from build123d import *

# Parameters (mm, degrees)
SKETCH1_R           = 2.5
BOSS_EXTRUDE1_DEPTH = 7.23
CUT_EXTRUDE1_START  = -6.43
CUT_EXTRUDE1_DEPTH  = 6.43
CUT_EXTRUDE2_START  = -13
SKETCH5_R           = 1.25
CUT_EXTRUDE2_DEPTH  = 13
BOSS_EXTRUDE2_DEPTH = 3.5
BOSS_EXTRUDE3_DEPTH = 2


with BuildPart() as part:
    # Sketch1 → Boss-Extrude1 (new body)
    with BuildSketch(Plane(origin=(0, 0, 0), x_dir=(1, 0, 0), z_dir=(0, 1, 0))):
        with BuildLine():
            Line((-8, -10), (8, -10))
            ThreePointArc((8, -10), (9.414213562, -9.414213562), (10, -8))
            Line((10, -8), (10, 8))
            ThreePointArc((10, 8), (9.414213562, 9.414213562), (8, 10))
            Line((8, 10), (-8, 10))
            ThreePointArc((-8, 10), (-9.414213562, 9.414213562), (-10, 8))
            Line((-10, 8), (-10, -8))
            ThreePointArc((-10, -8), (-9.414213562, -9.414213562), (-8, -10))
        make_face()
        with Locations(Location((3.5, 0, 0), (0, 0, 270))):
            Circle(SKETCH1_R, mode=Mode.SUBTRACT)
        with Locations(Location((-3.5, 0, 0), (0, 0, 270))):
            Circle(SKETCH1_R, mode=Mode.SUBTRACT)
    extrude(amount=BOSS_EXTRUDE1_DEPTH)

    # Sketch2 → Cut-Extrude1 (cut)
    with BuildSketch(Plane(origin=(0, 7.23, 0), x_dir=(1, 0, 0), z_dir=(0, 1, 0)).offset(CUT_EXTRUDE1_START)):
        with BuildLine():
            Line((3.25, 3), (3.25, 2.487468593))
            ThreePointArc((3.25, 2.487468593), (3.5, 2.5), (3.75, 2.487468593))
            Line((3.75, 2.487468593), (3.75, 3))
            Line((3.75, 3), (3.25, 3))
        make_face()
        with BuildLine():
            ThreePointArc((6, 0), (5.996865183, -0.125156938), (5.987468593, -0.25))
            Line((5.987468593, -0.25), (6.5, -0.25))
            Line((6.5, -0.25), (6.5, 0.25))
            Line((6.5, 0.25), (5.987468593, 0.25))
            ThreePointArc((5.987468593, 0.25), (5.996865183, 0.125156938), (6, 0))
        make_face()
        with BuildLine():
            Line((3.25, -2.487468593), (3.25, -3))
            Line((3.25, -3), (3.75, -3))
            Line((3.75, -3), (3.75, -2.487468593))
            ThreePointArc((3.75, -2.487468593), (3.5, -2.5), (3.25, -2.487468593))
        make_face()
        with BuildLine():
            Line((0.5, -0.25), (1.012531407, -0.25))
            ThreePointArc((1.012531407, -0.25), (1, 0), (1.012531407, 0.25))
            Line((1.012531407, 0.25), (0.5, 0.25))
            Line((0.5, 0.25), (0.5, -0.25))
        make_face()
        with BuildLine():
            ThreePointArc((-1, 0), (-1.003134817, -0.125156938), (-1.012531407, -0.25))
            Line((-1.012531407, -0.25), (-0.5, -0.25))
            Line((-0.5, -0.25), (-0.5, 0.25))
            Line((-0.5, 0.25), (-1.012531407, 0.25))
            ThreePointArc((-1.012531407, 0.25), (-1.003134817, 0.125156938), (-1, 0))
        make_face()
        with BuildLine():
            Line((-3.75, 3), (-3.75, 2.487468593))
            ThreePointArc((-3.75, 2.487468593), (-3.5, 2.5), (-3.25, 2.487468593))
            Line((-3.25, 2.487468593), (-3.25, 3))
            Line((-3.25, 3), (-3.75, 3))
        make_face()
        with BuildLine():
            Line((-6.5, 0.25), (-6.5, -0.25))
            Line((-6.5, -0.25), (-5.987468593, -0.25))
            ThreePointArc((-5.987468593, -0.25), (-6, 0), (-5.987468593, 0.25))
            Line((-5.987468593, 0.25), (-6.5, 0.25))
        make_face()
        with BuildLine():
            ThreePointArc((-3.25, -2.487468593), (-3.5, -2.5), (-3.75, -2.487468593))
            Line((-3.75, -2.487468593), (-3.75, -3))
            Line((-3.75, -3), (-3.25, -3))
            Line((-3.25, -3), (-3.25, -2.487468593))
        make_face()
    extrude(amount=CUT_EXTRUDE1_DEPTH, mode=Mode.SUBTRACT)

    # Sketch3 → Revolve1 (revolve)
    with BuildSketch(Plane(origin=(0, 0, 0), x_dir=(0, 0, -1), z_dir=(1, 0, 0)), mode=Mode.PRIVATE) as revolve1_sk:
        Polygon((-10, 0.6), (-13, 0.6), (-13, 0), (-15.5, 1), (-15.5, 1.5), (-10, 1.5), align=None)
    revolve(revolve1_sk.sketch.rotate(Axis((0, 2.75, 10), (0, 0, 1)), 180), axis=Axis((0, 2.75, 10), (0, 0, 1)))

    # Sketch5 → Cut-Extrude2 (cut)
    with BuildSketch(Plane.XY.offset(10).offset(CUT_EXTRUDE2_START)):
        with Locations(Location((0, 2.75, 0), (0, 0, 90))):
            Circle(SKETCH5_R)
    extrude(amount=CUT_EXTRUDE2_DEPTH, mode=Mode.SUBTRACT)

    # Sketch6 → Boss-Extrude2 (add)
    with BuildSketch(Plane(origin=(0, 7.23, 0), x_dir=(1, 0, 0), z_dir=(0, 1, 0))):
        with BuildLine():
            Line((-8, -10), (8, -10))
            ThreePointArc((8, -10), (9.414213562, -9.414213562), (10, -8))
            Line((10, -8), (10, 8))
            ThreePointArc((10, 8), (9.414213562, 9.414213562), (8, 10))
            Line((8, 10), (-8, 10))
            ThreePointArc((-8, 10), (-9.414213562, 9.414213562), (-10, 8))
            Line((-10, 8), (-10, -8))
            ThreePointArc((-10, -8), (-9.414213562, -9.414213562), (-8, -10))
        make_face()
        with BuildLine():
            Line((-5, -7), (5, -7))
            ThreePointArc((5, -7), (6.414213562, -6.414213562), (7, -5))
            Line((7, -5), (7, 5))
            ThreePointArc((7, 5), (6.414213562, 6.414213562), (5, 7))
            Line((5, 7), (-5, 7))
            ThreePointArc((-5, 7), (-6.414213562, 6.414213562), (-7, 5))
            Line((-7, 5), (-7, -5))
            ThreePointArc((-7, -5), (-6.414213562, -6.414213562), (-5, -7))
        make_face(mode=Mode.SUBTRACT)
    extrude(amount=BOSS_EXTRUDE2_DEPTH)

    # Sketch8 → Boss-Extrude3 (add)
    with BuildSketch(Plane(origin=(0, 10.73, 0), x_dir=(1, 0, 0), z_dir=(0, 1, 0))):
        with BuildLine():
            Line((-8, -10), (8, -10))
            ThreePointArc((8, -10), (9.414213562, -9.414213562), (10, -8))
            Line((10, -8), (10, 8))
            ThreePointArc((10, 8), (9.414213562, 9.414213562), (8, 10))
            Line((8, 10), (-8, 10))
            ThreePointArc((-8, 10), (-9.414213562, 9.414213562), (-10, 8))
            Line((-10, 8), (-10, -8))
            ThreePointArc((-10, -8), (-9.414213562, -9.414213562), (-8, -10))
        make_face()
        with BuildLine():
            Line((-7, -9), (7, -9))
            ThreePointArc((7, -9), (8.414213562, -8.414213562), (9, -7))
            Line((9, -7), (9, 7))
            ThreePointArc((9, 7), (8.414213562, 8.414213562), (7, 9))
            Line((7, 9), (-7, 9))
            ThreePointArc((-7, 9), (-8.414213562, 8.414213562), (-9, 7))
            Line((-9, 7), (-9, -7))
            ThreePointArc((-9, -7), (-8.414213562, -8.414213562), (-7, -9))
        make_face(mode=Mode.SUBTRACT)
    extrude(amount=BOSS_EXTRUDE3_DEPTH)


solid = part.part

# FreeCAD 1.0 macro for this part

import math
import FreeCAD as App
import Part
import Sketcher

doc = App.newDocument("Part")
params = doc.addObject("Spreadsheet::Sheet", "Params")
for row, (alias, value) in enumerate([
    ("sketch1_diameter", "5 mm"),
    ("sketch1_radius", "2 mm"),
    ("sketch1_width", "16 mm"),
    ("pad1_length", "7.23 mm"),
    ("sketch2_radius", "2.5 mm"),
    ("sketch2_width", "0.5 mm"),
    ("pocket1_length", "6.43 mm"),
    ("sketch3_height", "3 mm"),
    ("sketch3_width", "0.9 mm"),
    ("sketch3_width2", "0.5 mm"),
    ("sketch3_width3", "0.6 mm"),
    ("sketch3_height2", "5.5 mm"),
    ("revolution_angle", "360 deg"),
    ("sketch4_diameter", "2.5 mm"),
    ("pocket2_length", "13 mm"),
    ("sketch5_radius", "2 mm"),
    ("sketch5_width", "16 mm"),
    ("sketch5_width2", "10 mm"),
    ("pad2_length", "3.5 mm"),
    ("sketch6_radius", "2 mm"),
    ("sketch6_width", "16 mm"),
    ("sketch6_width2", "14 mm"),
    ("pad3_length", "2 mm"),
], start=1):
    params.set(f"A{row}", alias)
    params.set(f"B{row}", "=" + value)
    params.setAlias(f"B{row}", alias)

body = doc.addObject("PartDesign::Body", "Body")

# Sketch on XZ plane
sketch1 = doc.addObject("Sketcher::SketchObject", "Sketch")
body.addObject(sketch1)
sketch1.AttachmentSupport = (doc.XZ_Plane, [""])
sketch1.MapMode = "FlatFace"
sketch1.addGeometry([
    Part.LineSegment(App.Vector(-8, 10, 0), App.Vector(8, 10, 0)),  # 0
    Part.ArcOfCircle(Part.Circle(App.Vector(8, 8, 0), App.Vector(0, 0, 1), 2), math.radians(0), math.radians(90)),  # 1
    Part.LineSegment(App.Vector(10, 8, 0), App.Vector(10, -8, 0)),  # 2
    Part.ArcOfCircle(Part.Circle(App.Vector(8, -8, 0), App.Vector(0, 0, 1), 2), math.radians(-90), math.radians(0)),  # 3
    Part.LineSegment(App.Vector(8, -10, 0), App.Vector(-8, -10, 0)),  # 4
    Part.ArcOfCircle(Part.Circle(App.Vector(-8, -8, 0), App.Vector(0, 0, 1), 2), math.radians(-180), math.radians(-90)),  # 5
    Part.LineSegment(App.Vector(-10, -8, 0), App.Vector(-10, 8, 0)),  # 6
    Part.ArcOfCircle(Part.Circle(App.Vector(-8, 8, 0), App.Vector(0, 0, 1), 2), math.radians(90), math.radians(180)),  # 7
    Part.Circle(App.Vector(-3.5, 0, 0), App.Vector(0, 0, 1), 2.5),  # 8
    Part.Circle(App.Vector(3.5, 0, 0), App.Vector(0, 0, 1), 2.5),  # 9
], False)
sketch1.addConstraint([
    Sketcher.Constraint("Tangent", 0, 2, 1, 2),
    Sketcher.Constraint("Tangent", 1, 1, 2, 1),
    Sketcher.Constraint("Tangent", 2, 2, 3, 2),
    Sketcher.Constraint("Tangent", 3, 1, 4, 1),
    Sketcher.Constraint("Tangent", 4, 2, 5, 2),
    Sketcher.Constraint("Tangent", 5, 1, 6, 1),
    Sketcher.Constraint("Tangent", 6, 2, 7, 2),
    Sketcher.Constraint("Tangent", 7, 1, 0, 1),
    Sketcher.Constraint("Horizontal", 0),
    Sketcher.Constraint("Vertical", 2),
    Sketcher.Constraint("Horizontal", 4),
    Sketcher.Constraint("Vertical", 6),
    Sketcher.Constraint("Equal", 1, 3),
    Sketcher.Constraint("Equal", 3, 5),
    Sketcher.Constraint("Equal", 5, 7),
    Sketcher.Constraint("Equal", 8, 9),
    Sketcher.Constraint("Symmetric", 1, 3, 5, 3, -1, 1),
    Sketcher.Constraint("Symmetric", 8, 3, 9, 3, -1, 1),
    Sketcher.Constraint("PointOnObject", 8, 3, -1),
    Sketcher.Constraint("Equal", 4, 2),
    Sketcher.Constraint("Diameter", 8, 5.0),
    Sketcher.Constraint("Radius", 1, 2.0),
    Sketcher.Constraint("DistanceX", 0, 1, 0, 2, 16.0),
    Sketcher.Constraint("DistanceX", 8, 3, 9, 3, 7.0),
])
sketch1.setExpression("Constraints[20]", "Params.sketch1_diameter")
sketch1.setExpression("Constraints[21]", "Params.sketch1_radius")
sketch1.setExpression("Constraints[22]", "Params.sketch1_width")
pad1 = doc.addObject("PartDesign::Pad", "Pad")
body.addObject(pad1)
pad1.Profile = sketch1
pad1.setExpression("Length", "Params.pad1_length")
pad1.Reversed = True

# Sketch on XZ plane
sketch2 = doc.addObject("Sketcher::SketchObject", "Sketch001")
body.addObject(sketch2)
sketch2.AttachmentSupport = (doc.XZ_Plane, [""])
sketch2.MapMode = "FlatFace"
sketch2.AttachmentOffset = App.Placement(App.Vector(0, 0, -0.8), App.Rotation())
sketch2.addGeometry([
    Part.LineSegment(App.Vector(3.25, -3, 0), App.Vector(3.25, -2.487469, 0)),  # 0
    Part.ArcOfCircle(Part.Circle(App.Vector(3.5, 0, 0), App.Vector(0, 0, 1), 2.5), math.radians(-95.73917), math.radians(-84.26083)),  # 1
    Part.LineSegment(App.Vector(3.75, -2.487469, 0), App.Vector(3.75, -3, 0)),  # 2
    Part.LineSegment(App.Vector(3.75, -3, 0), App.Vector(3.25, -3, 0)),  # 3
    Part.ArcOfCircle(Part.Circle(App.Vector(3.5, 0, 0), App.Vector(0, 0, 1), 2.5), math.radians(0), math.radians(5.739171)),  # 4
    Part.LineSegment(App.Vector(5.987469, 0.25, 0), App.Vector(6.5, 0.25, 0)),  # 5
    Part.LineSegment(App.Vector(6.5, 0.25, 0), App.Vector(6.5, -0.25, 0)),  # 6
    Part.LineSegment(App.Vector(6.5, -0.25, 0), App.Vector(5.987469, -0.25, 0)),  # 7
    Part.ArcOfCircle(Part.Circle(App.Vector(3.5, 0, 0), App.Vector(0, 0, 1), 2.5), math.radians(-5.739171), math.radians(0)),  # 8
    Part.LineSegment(App.Vector(3.25, 2.487469, 0), App.Vector(3.25, 3, 0)),  # 9
    Part.LineSegment(App.Vector(3.25, 3, 0), App.Vector(3.75, 3, 0)),  # 10
    Part.LineSegment(App.Vector(3.75, 3, 0), App.Vector(3.75, 2.487469, 0)),  # 11
    Part.ArcOfCircle(Part.Circle(App.Vector(3.5, 0, 0), App.Vector(0, 0, 1), 2.5), math.radians(84.26083), math.radians(95.73917)),  # 12
    Part.LineSegment(App.Vector(0.5, 0.25, 0), App.Vector(1.012531, 0.25, 0)),  # 13
    Part.ArcOfCircle(Part.Circle(App.Vector(3.5, 0, 0), App.Vector(0, 0, 1), 2.5), math.radians(174.26083), math.radians(185.73917)),  # 14
    Part.LineSegment(App.Vector(1.012531, -0.25, 0), App.Vector(0.5, -0.25, 0)),  # 15
    Part.LineSegment(App.Vector(0.5, -0.25, 0), App.Vector(0.5, 0.25, 0)),  # 16
    Part.ArcOfCircle(Part.Circle(App.Vector(-3.5, 0, 0), App.Vector(0, 0, 1), 2.5), math.radians(0), math.radians(5.739171)),  # 17
    Part.LineSegment(App.Vector(-1.012531, 0.25, 0), App.Vector(-0.5, 0.25, 0)),  # 18
    Part.LineSegment(App.Vector(-0.5, 0.25, 0), App.Vector(-0.5, -0.25, 0)),  # 19
    Part.LineSegment(App.Vector(-0.5, -0.25, 0), App.Vector(-1.012531, -0.25, 0)),  # 20
    Part.ArcOfCircle(Part.Circle(App.Vector(-3.5, 0, 0), App.Vector(0, 0, 1), 2.5), math.radians(-5.739171), math.radians(0)),  # 21
    Part.LineSegment(App.Vector(-3.75, -3, 0), App.Vector(-3.75, -2.487469, 0)),  # 22
    Part.ArcOfCircle(Part.Circle(App.Vector(-3.5, 0, 0), App.Vector(0, 0, 1), 2.5), math.radians(-95.73917), math.radians(-84.26083)),  # 23
    Part.LineSegment(App.Vector(-3.25, -2.487469, 0), App.Vector(-3.25, -3, 0)),  # 24
    Part.LineSegment(App.Vector(-3.25, -3, 0), App.Vector(-3.75, -3, 0)),  # 25
    Part.LineSegment(App.Vector(-6.5, -0.25, 0), App.Vector(-6.5, 0.25, 0)),  # 26
    Part.LineSegment(App.Vector(-6.5, 0.25, 0), App.Vector(-5.987469, 0.25, 0)),  # 27
    Part.ArcOfCircle(Part.Circle(App.Vector(-3.5, 0, 0), App.Vector(0, 0, 1), 2.5), math.radians(174.26083), math.radians(185.73917)),  # 28
    Part.LineSegment(App.Vector(-5.987469, -0.25, 0), App.Vector(-6.5, -0.25, 0)),  # 29
    Part.ArcOfCircle(Part.Circle(App.Vector(-3.5, 0, 0), App.Vector(0, 0, 1), 2.5), math.radians(84.26083), math.radians(95.73917)),  # 30
    Part.LineSegment(App.Vector(-3.75, 2.487469, 0), App.Vector(-3.75, 3, 0)),  # 31
    Part.LineSegment(App.Vector(-3.75, 3, 0), App.Vector(-3.25, 3, 0)),  # 32
    Part.LineSegment(App.Vector(-3.25, 3, 0), App.Vector(-3.25, 2.487469, 0)),  # 33
], False)
sketch2.addConstraint([
    Sketcher.Constraint("Coincident", 0, 2, 1, 1),
    Sketcher.Constraint("Coincident", 1, 2, 2, 1),
    Sketcher.Constraint("Coincident", 2, 2, 3, 1),
    Sketcher.Constraint("Coincident", 3, 2, 0, 1),
    Sketcher.Constraint("Coincident", 4, 2, 5, 1),
    Sketcher.Constraint("Coincident", 5, 2, 6, 1),
    Sketcher.Constraint("Coincident", 6, 2, 7, 1),
    Sketcher.Constraint("Coincident", 7, 2, 8, 1),
    Sketcher.Constraint("Tangent", 8, 2, 4, 1),
    Sketcher.Constraint("Coincident", 9, 2, 10, 1),
    Sketcher.Constraint("Coincident", 10, 2, 11, 1),
    Sketcher.Constraint("Coincident", 11, 2, 12, 1),
    Sketcher.Constraint("Coincident", 12, 2, 9, 1),
    Sketcher.Constraint("Coincident", 13, 2, 14, 1),
    Sketcher.Constraint("Coincident", 14, 2, 15, 1),
    Sketcher.Constraint("Coincident", 15, 2, 16, 1),
    Sketcher.Constraint("Coincident", 16, 2, 13, 1),
    Sketcher.Constraint("Coincident", 17, 2, 18, 1),
    Sketcher.Constraint("Coincident", 18, 2, 19, 1),
    Sketcher.Constraint("Coincident", 19, 2, 20, 1),
    Sketcher.Constraint("Coincident", 20, 2, 21, 1),
    Sketcher.Constraint("Tangent", 21, 2, 17, 1),
    Sketcher.Constraint("Coincident", 22, 2, 23, 1),
    Sketcher.Constraint("Coincident", 23, 2, 24, 1),
    Sketcher.Constraint("Coincident", 24, 2, 25, 1),
    Sketcher.Constraint("Coincident", 25, 2, 22, 1),
    Sketcher.Constraint("Coincident", 26, 2, 27, 1),
    Sketcher.Constraint("Coincident", 27, 2, 28, 1),
    Sketcher.Constraint("Coincident", 28, 2, 29, 1),
    Sketcher.Constraint("Coincident", 29, 2, 26, 1),
    Sketcher.Constraint("Coincident", 30, 2, 31, 1),
    Sketcher.Constraint("Coincident", 31, 2, 32, 1),
    Sketcher.Constraint("Coincident", 32, 2, 33, 1),
    Sketcher.Constraint("Coincident", 33, 2, 30, 1),
    Sketcher.Constraint("Vertical", 0),
    Sketcher.Constraint("Vertical", 2),
    Sketcher.Constraint("Horizontal", 3),
    Sketcher.Constraint("Horizontal", 5),
    Sketcher.Constraint("Vertical", 6),
    Sketcher.Constraint("Horizontal", 7),
    Sketcher.Constraint("Vertical", 9),
    Sketcher.Constraint("Horizontal", 10),
    Sketcher.Constraint("Vertical", 11),
    Sketcher.Constraint("Horizontal", 13),
    Sketcher.Constraint("Horizontal", 15),
    Sketcher.Constraint("Vertical", 16),
    Sketcher.Constraint("Horizontal", 18),
    Sketcher.Constraint("Vertical", 19),
    Sketcher.Constraint("Horizontal", 20),
    Sketcher.Constraint("Vertical", 22),
    Sketcher.Constraint("Vertical", 24),
    Sketcher.Constraint("Horizontal", 25),
    Sketcher.Constraint("Vertical", 26),
    Sketcher.Constraint("Horizontal", 27),
    Sketcher.Constraint("Horizontal", 29),
    Sketcher.Constraint("Vertical", 31),
    Sketcher.Constraint("Horizontal", 32),
    Sketcher.Constraint("Vertical", 33),
    Sketcher.Constraint("Coincident", 4, 3, 1, 3),
    Sketcher.Constraint("Coincident", 12, 3, 1, 3),
    Sketcher.Constraint("Coincident", 14, 3, 1, 3),
    Sketcher.Constraint("Coincident", 23, 3, 17, 3),
    Sketcher.Constraint("Coincident", 28, 3, 17, 3),
    Sketcher.Constraint("Coincident", 30, 3, 17, 3),
    Sketcher.Constraint("Equal", 1, 4),
    Sketcher.Constraint("Equal", 4, 8),
    Sketcher.Constraint("Equal", 8, 12),
    Sketcher.Constraint("Equal", 12, 14),
    Sketcher.Constraint("Equal", 14, 17),
    Sketcher.Constraint("Equal", 17, 21),
    Sketcher.Constraint("Equal", 21, 23),
    Sketcher.Constraint("Equal", 23, 28),
    Sketcher.Constraint("Equal", 28, 30),
    Sketcher.Constraint("Symmetric", 1, 3, 17, 3, -1, 1),
    Sketcher.Constraint("Symmetric", 15, 2, 18, 2, -1, 1),
    Sketcher.Constraint("Symmetric", 9, 2, 24, 2, -1, 1),
    Sketcher.Constraint("Symmetric", 6, 2, 26, 2, -1, 1),
    Sketcher.Constraint("Symmetric", 2, 2, 31, 2, -1, 1),
    Sketcher.Constraint("Symmetric", 13, 2, 17, 2, -2),
    Sketcher.Constraint("Symmetric", 3, 2, 24, 2, -2),
    Sketcher.Constraint("PointOnObject", 8, 2, -1),
    Sketcher.Constraint("PointOnObject", 21, 2, -1),
    Sketcher.Constraint("Horizontal", 0, 2, 1, 2),
    Sketcher.Constraint("Horizontal", 11, 2, 12, 2),
    Sketcher.Constraint("Horizontal", 5, 2, 13, 2),
    Sketcher.Constraint("Horizontal", 7, 2, 14, 2),
    Sketcher.Constraint("Horizontal", 15, 2, 19, 2),
    Sketcher.Constraint("Horizontal", 1, 2, 22, 2),
    Sketcher.Constraint("Horizontal", 20, 2, 28, 2),
    Sketcher.Constraint("Horizontal", 30, 2, 33, 2),
    Sketcher.Constraint("Equal", 7, 13),
    Sketcher.Constraint("Equal", 29, 0),
    Sketcher.Constraint("Equal", 32, 6),
    Sketcher.Constraint("Radius", 1, 2.5),
    Sketcher.Constraint("DistanceX", 3, 2, 3, 1, 0.5),
    Sketcher.Constraint("DistanceY", 2, 2, -1, 1, 3.0),
    Sketcher.Constraint("DistanceX", -1, 1, 8, 2, 6.0),
])
sketch2.setExpression("Constraints[93]", "Params.sketch2_radius")
sketch2.setExpression("Constraints[94]", "Params.sketch2_width")
pocket1 = doc.addObject("PartDesign::Pocket", "Pocket")
body.addObject(pocket1)
pocket1.Profile = sketch2
pocket1.setExpression("Length", "Params.pocket1_length")

# Sketch on YZ plane
sketch3 = doc.addObject("Sketcher::SketchObject", "Sketch002")
body.addObject(sketch3)
sketch3.AttachmentSupport = (doc.YZ_Plane, [""])
sketch3.MapMode = "FlatFace"
sketch3.addGeometry([
    Part.LineSegment(App.Vector(0.6, 13, 0), App.Vector(0.6, 10, 0)),  # 0
    Part.LineSegment(App.Vector(0.6, 10, 0), App.Vector(1.5, 10, 0)),  # 1
    Part.LineSegment(App.Vector(1.5, 10, 0), App.Vector(1.5, 15.5, 0)),  # 2
    Part.LineSegment(App.Vector(1.5, 15.5, 0), App.Vector(1, 15.5, 0)),  # 3
    Part.LineSegment(App.Vector(1, 15.5, 0), App.Vector(0, 13, 0)),  # 4
    Part.LineSegment(App.Vector(0, 13, 0), App.Vector(0.6, 13, 0)),  # 5
], False)
sketch3.addGeometry(Part.LineSegment(App.Vector(2.75, 10, 0), App.Vector(2.75, 15.5, 0)), True)  # axis
sketch3.addConstraint([
    Sketcher.Constraint("Coincident", 0, 2, 1, 1),
    Sketcher.Constraint("Coincident", 1, 2, 2, 1),
    Sketcher.Constraint("Coincident", 2, 2, 3, 1),
    Sketcher.Constraint("Coincident", 3, 2, 4, 1),
    Sketcher.Constraint("Coincident", 4, 2, 5, 1),
    Sketcher.Constraint("Coincident", 5, 2, 0, 1),
    Sketcher.Constraint("Vertical", 0),
    Sketcher.Constraint("Horizontal", 1),
    Sketcher.Constraint("Vertical", 2),
    Sketcher.Constraint("Horizontal", 3),
    Sketcher.Constraint("Horizontal", 5),
    Sketcher.Constraint("Vertical", 6),
    Sketcher.Constraint("PointOnObject", 4, 2, -2),
    Sketcher.Constraint("Horizontal", 1, 2, 6, 1),
    Sketcher.Constraint("Horizontal", 3, 2, 6, 2),
    Sketcher.Constraint("DistanceY", 0, 2, 0, 1, 3.0),
    Sketcher.Constraint("DistanceX", 1, 1, 1, 2, 0.9),
    Sketcher.Constraint("DistanceX", 3, 2, 3, 1, 0.5),
    Sketcher.Constraint("DistanceX", 5, 1, 5, 2, 0.6),
    Sketcher.Constraint("DistanceY", 2, 1, 2, 2, 5.5),
    Sketcher.Constraint("DistanceY", -1, 1, 0, 2, 10.0),
    Sketcher.Constraint("DistanceX", -1, 1, 6, 1, 2.75),
])
sketch3.setExpression("Constraints[15]", "Params.sketch3_height")
sketch3.setExpression("Constraints[16]", "Params.sketch3_width")
sketch3.setExpression("Constraints[17]", "Params.sketch3_width2")
sketch3.setExpression("Constraints[18]", "Params.sketch3_width3")
sketch3.setExpression("Constraints[19]", "Params.sketch3_height2")
revolution = doc.addObject("PartDesign::Revolution", "Revolution")
body.addObject(revolution)
revolution.Profile = sketch3
revolution.ReferenceAxis = (sketch3, ["Axis0"])
revolution.setExpression("Angle", "Params.revolution_angle")

# Sketch on XY plane
sketch4 = doc.addObject("Sketcher::SketchObject", "Sketch003")
body.addObject(sketch4)
sketch4.AttachmentSupport = (doc.XY_Plane, [""])
sketch4.MapMode = "FlatFace"
sketch4.AttachmentOffset = App.Placement(App.Vector(0, 0, -3), App.Rotation())
sketch4.addGeometry(Part.Circle(App.Vector(0, 2.75, 0), App.Vector(0, 0, 1), 1.25), False)
sketch4.addConstraint([
    Sketcher.Constraint("PointOnObject", 0, 3, -2),
    Sketcher.Constraint("Diameter", 0, 2.5),
    Sketcher.Constraint("DistanceY", -1, 1, 0, 3, 2.75),
])
sketch4.setExpression("Constraints[1]", "Params.sketch4_diameter")
pocket2 = doc.addObject("PartDesign::Pocket", "Pocket001")
body.addObject(pocket2)
pocket2.Profile = sketch4
pocket2.setExpression("Length", "Params.pocket2_length")
pocket2.Reversed = True

# Sketch on XZ plane
sketch5 = doc.addObject("Sketcher::SketchObject", "Sketch004")
body.addObject(sketch5)
sketch5.AttachmentSupport = (doc.XZ_Plane, [""])
sketch5.MapMode = "FlatFace"
sketch5.AttachmentOffset = App.Placement(App.Vector(0, 0, -7.23), App.Rotation())
sketch5.addGeometry([
    Part.LineSegment(App.Vector(-8, 10, 0), App.Vector(8, 10, 0)),  # 0
    Part.ArcOfCircle(Part.Circle(App.Vector(8, 8, 0), App.Vector(0, 0, 1), 2), math.radians(0), math.radians(90)),  # 1
    Part.LineSegment(App.Vector(10, 8, 0), App.Vector(10, -8, 0)),  # 2
    Part.ArcOfCircle(Part.Circle(App.Vector(8, -8, 0), App.Vector(0, 0, 1), 2), math.radians(-90), math.radians(0)),  # 3
    Part.LineSegment(App.Vector(8, -10, 0), App.Vector(-8, -10, 0)),  # 4
    Part.ArcOfCircle(Part.Circle(App.Vector(-8, -8, 0), App.Vector(0, 0, 1), 2), math.radians(-180), math.radians(-90)),  # 5
    Part.LineSegment(App.Vector(-10, -8, 0), App.Vector(-10, 8, 0)),  # 6
    Part.ArcOfCircle(Part.Circle(App.Vector(-8, 8, 0), App.Vector(0, 0, 1), 2), math.radians(90), math.radians(180)),  # 7
    Part.LineSegment(App.Vector(5, 7, 0), App.Vector(-5, 7, 0)),  # 8
    Part.ArcOfCircle(Part.Circle(App.Vector(-5, 5, 0), App.Vector(0, 0, 1), 2), math.radians(90), math.radians(180)),  # 9
    Part.LineSegment(App.Vector(-7, 5, 0), App.Vector(-7, -5, 0)),  # 10
    Part.ArcOfCircle(Part.Circle(App.Vector(-5, -5, 0), App.Vector(0, 0, 1), 2), math.radians(-180), math.radians(-90)),  # 11
    Part.LineSegment(App.Vector(-5, -7, 0), App.Vector(5, -7, 0)),  # 12
    Part.ArcOfCircle(Part.Circle(App.Vector(5, -5, 0), App.Vector(0, 0, 1), 2), math.radians(-90), math.radians(0)),  # 13
    Part.LineSegment(App.Vector(7, -5, 0), App.Vector(7, 5, 0)),  # 14
    Part.ArcOfCircle(Part.Circle(App.Vector(5, 5, 0), App.Vector(0, 0, 1), 2), math.radians(0), math.radians(90)),  # 15
], False)
sketch5.addConstraint([
    Sketcher.Constraint("Tangent", 0, 2, 1, 2),
    Sketcher.Constraint("Tangent", 1, 1, 2, 1),
    Sketcher.Constraint("Tangent", 2, 2, 3, 2),
    Sketcher.Constraint("Tangent", 3, 1, 4, 1),
    Sketcher.Constraint("Tangent", 4, 2, 5, 2),
    Sketcher.Constraint("Tangent", 5, 1, 6, 1),
    Sketcher.Constraint("Tangent", 6, 2, 7, 2),
    Sketcher.Constraint("Tangent", 7, 1, 0, 1),
    Sketcher.Constraint("Tangent", 8, 2, 9, 1),
    Sketcher.Constraint("Tangent", 9, 2, 10, 1),
    Sketcher.Constraint("Tangent", 10, 2, 11, 1),
    Sketcher.Constraint("Tangent", 11, 2, 12, 1),
    Sketcher.Constraint("Tangent", 12, 2, 13, 1),
    Sketcher.Constraint("Tangent", 13, 2, 14, 1),
    Sketcher.Constraint("Tangent", 14, 2, 15, 1),
    Sketcher.Constraint("Tangent", 15, 2, 8, 1),
    Sketcher.Constraint("Horizontal", 0),
    Sketcher.Constraint("Vertical", 2),
    Sketcher.Constraint("Horizontal", 4),
    Sketcher.Constraint("Vertical", 6),
    Sketcher.Constraint("Horizontal", 8),
    Sketcher.Constraint("Vertical", 10),
    Sketcher.Constraint("Horizontal", 12),
    Sketcher.Constraint("Vertical", 14),
    Sketcher.Constraint("Equal", 1, 3),
    Sketcher.Constraint("Equal", 3, 5),
    Sketcher.Constraint("Equal", 5, 7),
    Sketcher.Constraint("Equal", 7, 9),
    Sketcher.Constraint("Equal", 9, 11),
    Sketcher.Constraint("Equal", 11, 13),
    Sketcher.Constraint("Equal", 13, 15),
    Sketcher.Constraint("Symmetric", 1, 3, 5, 3, -1, 1),
    Sketcher.Constraint("Symmetric", 9, 3, 13, 3, -1, 1),
    Sketcher.Constraint("Equal", 4, 2),
    Sketcher.Constraint("Equal", 12, 10),
    Sketcher.Constraint("Radius", 1, 2.0),
    Sketcher.Constraint("DistanceX", 0, 1, 0, 2, 16.0),
    Sketcher.Constraint("DistanceX", 8, 2, 8, 1, 10.0),
])
sketch5.setExpression("Constraints[35]", "Params.sketch5_radius")
sketch5.setExpression("Constraints[36]", "Params.sketch5_width")
sketch5.setExpression("Constraints[37]", "Params.sketch5_width2")
pad2 = doc.addObject("PartDesign::Pad", "Pad001")
body.addObject(pad2)
pad2.Profile = sketch5
pad2.setExpression("Length", "Params.pad2_length")
pad2.Reversed = True

# Sketch on XZ plane
sketch6 = doc.addObject("Sketcher::SketchObject", "Sketch005")
body.addObject(sketch6)
sketch6.AttachmentSupport = (doc.XZ_Plane, [""])
sketch6.MapMode = "FlatFace"
sketch6.AttachmentOffset = App.Placement(App.Vector(0, 0, -10.73), App.Rotation())
sketch6.addGeometry([
    Part.LineSegment(App.Vector(-8, 10, 0), App.Vector(8, 10, 0)),  # 0
    Part.ArcOfCircle(Part.Circle(App.Vector(8, 8, 0), App.Vector(0, 0, 1), 2), math.radians(0), math.radians(90)),  # 1
    Part.LineSegment(App.Vector(10, 8, 0), App.Vector(10, -8, 0)),  # 2
    Part.ArcOfCircle(Part.Circle(App.Vector(8, -8, 0), App.Vector(0, 0, 1), 2), math.radians(-90), math.radians(0)),  # 3
    Part.LineSegment(App.Vector(8, -10, 0), App.Vector(-8, -10, 0)),  # 4
    Part.ArcOfCircle(Part.Circle(App.Vector(-8, -8, 0), App.Vector(0, 0, 1), 2), math.radians(-180), math.radians(-90)),  # 5
    Part.LineSegment(App.Vector(-10, -8, 0), App.Vector(-10, 8, 0)),  # 6
    Part.ArcOfCircle(Part.Circle(App.Vector(-8, 8, 0), App.Vector(0, 0, 1), 2), math.radians(90), math.radians(180)),  # 7
    Part.LineSegment(App.Vector(7, 9, 0), App.Vector(-7, 9, 0)),  # 8
    Part.ArcOfCircle(Part.Circle(App.Vector(-7, 7, 0), App.Vector(0, 0, 1), 2), math.radians(90), math.radians(180)),  # 9
    Part.LineSegment(App.Vector(-9, 7, 0), App.Vector(-9, -7, 0)),  # 10
    Part.ArcOfCircle(Part.Circle(App.Vector(-7, -7, 0), App.Vector(0, 0, 1), 2), math.radians(-180), math.radians(-90)),  # 11
    Part.LineSegment(App.Vector(-7, -9, 0), App.Vector(7, -9, 0)),  # 12
    Part.ArcOfCircle(Part.Circle(App.Vector(7, -7, 0), App.Vector(0, 0, 1), 2), math.radians(-90), math.radians(0)),  # 13
    Part.LineSegment(App.Vector(9, -7, 0), App.Vector(9, 7, 0)),  # 14
    Part.ArcOfCircle(Part.Circle(App.Vector(7, 7, 0), App.Vector(0, 0, 1), 2), math.radians(0), math.radians(90)),  # 15
], False)
sketch6.addConstraint([
    Sketcher.Constraint("Tangent", 0, 2, 1, 2),
    Sketcher.Constraint("Tangent", 1, 1, 2, 1),
    Sketcher.Constraint("Tangent", 2, 2, 3, 2),
    Sketcher.Constraint("Tangent", 3, 1, 4, 1),
    Sketcher.Constraint("Tangent", 4, 2, 5, 2),
    Sketcher.Constraint("Tangent", 5, 1, 6, 1),
    Sketcher.Constraint("Tangent", 6, 2, 7, 2),
    Sketcher.Constraint("Tangent", 7, 1, 0, 1),
    Sketcher.Constraint("Tangent", 8, 2, 9, 1),
    Sketcher.Constraint("Tangent", 9, 2, 10, 1),
    Sketcher.Constraint("Tangent", 10, 2, 11, 1),
    Sketcher.Constraint("Tangent", 11, 2, 12, 1),
    Sketcher.Constraint("Tangent", 12, 2, 13, 1),
    Sketcher.Constraint("Tangent", 13, 2, 14, 1),
    Sketcher.Constraint("Tangent", 14, 2, 15, 1),
    Sketcher.Constraint("Tangent", 15, 2, 8, 1),
    Sketcher.Constraint("Horizontal", 0),
    Sketcher.Constraint("Vertical", 2),
    Sketcher.Constraint("Horizontal", 4),
    Sketcher.Constraint("Vertical", 6),
    Sketcher.Constraint("Horizontal", 8),
    Sketcher.Constraint("Vertical", 10),
    Sketcher.Constraint("Horizontal", 12),
    Sketcher.Constraint("Vertical", 14),
    Sketcher.Constraint("Equal", 1, 3),
    Sketcher.Constraint("Equal", 3, 5),
    Sketcher.Constraint("Equal", 5, 7),
    Sketcher.Constraint("Equal", 7, 9),
    Sketcher.Constraint("Equal", 9, 11),
    Sketcher.Constraint("Equal", 11, 13),
    Sketcher.Constraint("Equal", 13, 15),
    Sketcher.Constraint("Symmetric", 1, 3, 5, 3, -1, 1),
    Sketcher.Constraint("Symmetric", 9, 3, 13, 3, -1, 1),
    Sketcher.Constraint("Equal", 4, 2),
    Sketcher.Constraint("Equal", 12, 10),
    Sketcher.Constraint("Radius", 1, 2.0),
    Sketcher.Constraint("DistanceX", 0, 1, 0, 2, 16.0),
    Sketcher.Constraint("DistanceX", 8, 2, 8, 1, 14.0),
])
sketch6.setExpression("Constraints[35]", "Params.sketch6_radius")
sketch6.setExpression("Constraints[36]", "Params.sketch6_width")
sketch6.setExpression("Constraints[37]", "Params.sketch6_width2")
pad3 = doc.addObject("PartDesign::Pad", "Pad002")
body.addObject(pad3)
pad3.Profile = sketch6
pad3.setExpression("Length", "Params.pad3_length")
pad3.Reversed = True

doc.recompute()
